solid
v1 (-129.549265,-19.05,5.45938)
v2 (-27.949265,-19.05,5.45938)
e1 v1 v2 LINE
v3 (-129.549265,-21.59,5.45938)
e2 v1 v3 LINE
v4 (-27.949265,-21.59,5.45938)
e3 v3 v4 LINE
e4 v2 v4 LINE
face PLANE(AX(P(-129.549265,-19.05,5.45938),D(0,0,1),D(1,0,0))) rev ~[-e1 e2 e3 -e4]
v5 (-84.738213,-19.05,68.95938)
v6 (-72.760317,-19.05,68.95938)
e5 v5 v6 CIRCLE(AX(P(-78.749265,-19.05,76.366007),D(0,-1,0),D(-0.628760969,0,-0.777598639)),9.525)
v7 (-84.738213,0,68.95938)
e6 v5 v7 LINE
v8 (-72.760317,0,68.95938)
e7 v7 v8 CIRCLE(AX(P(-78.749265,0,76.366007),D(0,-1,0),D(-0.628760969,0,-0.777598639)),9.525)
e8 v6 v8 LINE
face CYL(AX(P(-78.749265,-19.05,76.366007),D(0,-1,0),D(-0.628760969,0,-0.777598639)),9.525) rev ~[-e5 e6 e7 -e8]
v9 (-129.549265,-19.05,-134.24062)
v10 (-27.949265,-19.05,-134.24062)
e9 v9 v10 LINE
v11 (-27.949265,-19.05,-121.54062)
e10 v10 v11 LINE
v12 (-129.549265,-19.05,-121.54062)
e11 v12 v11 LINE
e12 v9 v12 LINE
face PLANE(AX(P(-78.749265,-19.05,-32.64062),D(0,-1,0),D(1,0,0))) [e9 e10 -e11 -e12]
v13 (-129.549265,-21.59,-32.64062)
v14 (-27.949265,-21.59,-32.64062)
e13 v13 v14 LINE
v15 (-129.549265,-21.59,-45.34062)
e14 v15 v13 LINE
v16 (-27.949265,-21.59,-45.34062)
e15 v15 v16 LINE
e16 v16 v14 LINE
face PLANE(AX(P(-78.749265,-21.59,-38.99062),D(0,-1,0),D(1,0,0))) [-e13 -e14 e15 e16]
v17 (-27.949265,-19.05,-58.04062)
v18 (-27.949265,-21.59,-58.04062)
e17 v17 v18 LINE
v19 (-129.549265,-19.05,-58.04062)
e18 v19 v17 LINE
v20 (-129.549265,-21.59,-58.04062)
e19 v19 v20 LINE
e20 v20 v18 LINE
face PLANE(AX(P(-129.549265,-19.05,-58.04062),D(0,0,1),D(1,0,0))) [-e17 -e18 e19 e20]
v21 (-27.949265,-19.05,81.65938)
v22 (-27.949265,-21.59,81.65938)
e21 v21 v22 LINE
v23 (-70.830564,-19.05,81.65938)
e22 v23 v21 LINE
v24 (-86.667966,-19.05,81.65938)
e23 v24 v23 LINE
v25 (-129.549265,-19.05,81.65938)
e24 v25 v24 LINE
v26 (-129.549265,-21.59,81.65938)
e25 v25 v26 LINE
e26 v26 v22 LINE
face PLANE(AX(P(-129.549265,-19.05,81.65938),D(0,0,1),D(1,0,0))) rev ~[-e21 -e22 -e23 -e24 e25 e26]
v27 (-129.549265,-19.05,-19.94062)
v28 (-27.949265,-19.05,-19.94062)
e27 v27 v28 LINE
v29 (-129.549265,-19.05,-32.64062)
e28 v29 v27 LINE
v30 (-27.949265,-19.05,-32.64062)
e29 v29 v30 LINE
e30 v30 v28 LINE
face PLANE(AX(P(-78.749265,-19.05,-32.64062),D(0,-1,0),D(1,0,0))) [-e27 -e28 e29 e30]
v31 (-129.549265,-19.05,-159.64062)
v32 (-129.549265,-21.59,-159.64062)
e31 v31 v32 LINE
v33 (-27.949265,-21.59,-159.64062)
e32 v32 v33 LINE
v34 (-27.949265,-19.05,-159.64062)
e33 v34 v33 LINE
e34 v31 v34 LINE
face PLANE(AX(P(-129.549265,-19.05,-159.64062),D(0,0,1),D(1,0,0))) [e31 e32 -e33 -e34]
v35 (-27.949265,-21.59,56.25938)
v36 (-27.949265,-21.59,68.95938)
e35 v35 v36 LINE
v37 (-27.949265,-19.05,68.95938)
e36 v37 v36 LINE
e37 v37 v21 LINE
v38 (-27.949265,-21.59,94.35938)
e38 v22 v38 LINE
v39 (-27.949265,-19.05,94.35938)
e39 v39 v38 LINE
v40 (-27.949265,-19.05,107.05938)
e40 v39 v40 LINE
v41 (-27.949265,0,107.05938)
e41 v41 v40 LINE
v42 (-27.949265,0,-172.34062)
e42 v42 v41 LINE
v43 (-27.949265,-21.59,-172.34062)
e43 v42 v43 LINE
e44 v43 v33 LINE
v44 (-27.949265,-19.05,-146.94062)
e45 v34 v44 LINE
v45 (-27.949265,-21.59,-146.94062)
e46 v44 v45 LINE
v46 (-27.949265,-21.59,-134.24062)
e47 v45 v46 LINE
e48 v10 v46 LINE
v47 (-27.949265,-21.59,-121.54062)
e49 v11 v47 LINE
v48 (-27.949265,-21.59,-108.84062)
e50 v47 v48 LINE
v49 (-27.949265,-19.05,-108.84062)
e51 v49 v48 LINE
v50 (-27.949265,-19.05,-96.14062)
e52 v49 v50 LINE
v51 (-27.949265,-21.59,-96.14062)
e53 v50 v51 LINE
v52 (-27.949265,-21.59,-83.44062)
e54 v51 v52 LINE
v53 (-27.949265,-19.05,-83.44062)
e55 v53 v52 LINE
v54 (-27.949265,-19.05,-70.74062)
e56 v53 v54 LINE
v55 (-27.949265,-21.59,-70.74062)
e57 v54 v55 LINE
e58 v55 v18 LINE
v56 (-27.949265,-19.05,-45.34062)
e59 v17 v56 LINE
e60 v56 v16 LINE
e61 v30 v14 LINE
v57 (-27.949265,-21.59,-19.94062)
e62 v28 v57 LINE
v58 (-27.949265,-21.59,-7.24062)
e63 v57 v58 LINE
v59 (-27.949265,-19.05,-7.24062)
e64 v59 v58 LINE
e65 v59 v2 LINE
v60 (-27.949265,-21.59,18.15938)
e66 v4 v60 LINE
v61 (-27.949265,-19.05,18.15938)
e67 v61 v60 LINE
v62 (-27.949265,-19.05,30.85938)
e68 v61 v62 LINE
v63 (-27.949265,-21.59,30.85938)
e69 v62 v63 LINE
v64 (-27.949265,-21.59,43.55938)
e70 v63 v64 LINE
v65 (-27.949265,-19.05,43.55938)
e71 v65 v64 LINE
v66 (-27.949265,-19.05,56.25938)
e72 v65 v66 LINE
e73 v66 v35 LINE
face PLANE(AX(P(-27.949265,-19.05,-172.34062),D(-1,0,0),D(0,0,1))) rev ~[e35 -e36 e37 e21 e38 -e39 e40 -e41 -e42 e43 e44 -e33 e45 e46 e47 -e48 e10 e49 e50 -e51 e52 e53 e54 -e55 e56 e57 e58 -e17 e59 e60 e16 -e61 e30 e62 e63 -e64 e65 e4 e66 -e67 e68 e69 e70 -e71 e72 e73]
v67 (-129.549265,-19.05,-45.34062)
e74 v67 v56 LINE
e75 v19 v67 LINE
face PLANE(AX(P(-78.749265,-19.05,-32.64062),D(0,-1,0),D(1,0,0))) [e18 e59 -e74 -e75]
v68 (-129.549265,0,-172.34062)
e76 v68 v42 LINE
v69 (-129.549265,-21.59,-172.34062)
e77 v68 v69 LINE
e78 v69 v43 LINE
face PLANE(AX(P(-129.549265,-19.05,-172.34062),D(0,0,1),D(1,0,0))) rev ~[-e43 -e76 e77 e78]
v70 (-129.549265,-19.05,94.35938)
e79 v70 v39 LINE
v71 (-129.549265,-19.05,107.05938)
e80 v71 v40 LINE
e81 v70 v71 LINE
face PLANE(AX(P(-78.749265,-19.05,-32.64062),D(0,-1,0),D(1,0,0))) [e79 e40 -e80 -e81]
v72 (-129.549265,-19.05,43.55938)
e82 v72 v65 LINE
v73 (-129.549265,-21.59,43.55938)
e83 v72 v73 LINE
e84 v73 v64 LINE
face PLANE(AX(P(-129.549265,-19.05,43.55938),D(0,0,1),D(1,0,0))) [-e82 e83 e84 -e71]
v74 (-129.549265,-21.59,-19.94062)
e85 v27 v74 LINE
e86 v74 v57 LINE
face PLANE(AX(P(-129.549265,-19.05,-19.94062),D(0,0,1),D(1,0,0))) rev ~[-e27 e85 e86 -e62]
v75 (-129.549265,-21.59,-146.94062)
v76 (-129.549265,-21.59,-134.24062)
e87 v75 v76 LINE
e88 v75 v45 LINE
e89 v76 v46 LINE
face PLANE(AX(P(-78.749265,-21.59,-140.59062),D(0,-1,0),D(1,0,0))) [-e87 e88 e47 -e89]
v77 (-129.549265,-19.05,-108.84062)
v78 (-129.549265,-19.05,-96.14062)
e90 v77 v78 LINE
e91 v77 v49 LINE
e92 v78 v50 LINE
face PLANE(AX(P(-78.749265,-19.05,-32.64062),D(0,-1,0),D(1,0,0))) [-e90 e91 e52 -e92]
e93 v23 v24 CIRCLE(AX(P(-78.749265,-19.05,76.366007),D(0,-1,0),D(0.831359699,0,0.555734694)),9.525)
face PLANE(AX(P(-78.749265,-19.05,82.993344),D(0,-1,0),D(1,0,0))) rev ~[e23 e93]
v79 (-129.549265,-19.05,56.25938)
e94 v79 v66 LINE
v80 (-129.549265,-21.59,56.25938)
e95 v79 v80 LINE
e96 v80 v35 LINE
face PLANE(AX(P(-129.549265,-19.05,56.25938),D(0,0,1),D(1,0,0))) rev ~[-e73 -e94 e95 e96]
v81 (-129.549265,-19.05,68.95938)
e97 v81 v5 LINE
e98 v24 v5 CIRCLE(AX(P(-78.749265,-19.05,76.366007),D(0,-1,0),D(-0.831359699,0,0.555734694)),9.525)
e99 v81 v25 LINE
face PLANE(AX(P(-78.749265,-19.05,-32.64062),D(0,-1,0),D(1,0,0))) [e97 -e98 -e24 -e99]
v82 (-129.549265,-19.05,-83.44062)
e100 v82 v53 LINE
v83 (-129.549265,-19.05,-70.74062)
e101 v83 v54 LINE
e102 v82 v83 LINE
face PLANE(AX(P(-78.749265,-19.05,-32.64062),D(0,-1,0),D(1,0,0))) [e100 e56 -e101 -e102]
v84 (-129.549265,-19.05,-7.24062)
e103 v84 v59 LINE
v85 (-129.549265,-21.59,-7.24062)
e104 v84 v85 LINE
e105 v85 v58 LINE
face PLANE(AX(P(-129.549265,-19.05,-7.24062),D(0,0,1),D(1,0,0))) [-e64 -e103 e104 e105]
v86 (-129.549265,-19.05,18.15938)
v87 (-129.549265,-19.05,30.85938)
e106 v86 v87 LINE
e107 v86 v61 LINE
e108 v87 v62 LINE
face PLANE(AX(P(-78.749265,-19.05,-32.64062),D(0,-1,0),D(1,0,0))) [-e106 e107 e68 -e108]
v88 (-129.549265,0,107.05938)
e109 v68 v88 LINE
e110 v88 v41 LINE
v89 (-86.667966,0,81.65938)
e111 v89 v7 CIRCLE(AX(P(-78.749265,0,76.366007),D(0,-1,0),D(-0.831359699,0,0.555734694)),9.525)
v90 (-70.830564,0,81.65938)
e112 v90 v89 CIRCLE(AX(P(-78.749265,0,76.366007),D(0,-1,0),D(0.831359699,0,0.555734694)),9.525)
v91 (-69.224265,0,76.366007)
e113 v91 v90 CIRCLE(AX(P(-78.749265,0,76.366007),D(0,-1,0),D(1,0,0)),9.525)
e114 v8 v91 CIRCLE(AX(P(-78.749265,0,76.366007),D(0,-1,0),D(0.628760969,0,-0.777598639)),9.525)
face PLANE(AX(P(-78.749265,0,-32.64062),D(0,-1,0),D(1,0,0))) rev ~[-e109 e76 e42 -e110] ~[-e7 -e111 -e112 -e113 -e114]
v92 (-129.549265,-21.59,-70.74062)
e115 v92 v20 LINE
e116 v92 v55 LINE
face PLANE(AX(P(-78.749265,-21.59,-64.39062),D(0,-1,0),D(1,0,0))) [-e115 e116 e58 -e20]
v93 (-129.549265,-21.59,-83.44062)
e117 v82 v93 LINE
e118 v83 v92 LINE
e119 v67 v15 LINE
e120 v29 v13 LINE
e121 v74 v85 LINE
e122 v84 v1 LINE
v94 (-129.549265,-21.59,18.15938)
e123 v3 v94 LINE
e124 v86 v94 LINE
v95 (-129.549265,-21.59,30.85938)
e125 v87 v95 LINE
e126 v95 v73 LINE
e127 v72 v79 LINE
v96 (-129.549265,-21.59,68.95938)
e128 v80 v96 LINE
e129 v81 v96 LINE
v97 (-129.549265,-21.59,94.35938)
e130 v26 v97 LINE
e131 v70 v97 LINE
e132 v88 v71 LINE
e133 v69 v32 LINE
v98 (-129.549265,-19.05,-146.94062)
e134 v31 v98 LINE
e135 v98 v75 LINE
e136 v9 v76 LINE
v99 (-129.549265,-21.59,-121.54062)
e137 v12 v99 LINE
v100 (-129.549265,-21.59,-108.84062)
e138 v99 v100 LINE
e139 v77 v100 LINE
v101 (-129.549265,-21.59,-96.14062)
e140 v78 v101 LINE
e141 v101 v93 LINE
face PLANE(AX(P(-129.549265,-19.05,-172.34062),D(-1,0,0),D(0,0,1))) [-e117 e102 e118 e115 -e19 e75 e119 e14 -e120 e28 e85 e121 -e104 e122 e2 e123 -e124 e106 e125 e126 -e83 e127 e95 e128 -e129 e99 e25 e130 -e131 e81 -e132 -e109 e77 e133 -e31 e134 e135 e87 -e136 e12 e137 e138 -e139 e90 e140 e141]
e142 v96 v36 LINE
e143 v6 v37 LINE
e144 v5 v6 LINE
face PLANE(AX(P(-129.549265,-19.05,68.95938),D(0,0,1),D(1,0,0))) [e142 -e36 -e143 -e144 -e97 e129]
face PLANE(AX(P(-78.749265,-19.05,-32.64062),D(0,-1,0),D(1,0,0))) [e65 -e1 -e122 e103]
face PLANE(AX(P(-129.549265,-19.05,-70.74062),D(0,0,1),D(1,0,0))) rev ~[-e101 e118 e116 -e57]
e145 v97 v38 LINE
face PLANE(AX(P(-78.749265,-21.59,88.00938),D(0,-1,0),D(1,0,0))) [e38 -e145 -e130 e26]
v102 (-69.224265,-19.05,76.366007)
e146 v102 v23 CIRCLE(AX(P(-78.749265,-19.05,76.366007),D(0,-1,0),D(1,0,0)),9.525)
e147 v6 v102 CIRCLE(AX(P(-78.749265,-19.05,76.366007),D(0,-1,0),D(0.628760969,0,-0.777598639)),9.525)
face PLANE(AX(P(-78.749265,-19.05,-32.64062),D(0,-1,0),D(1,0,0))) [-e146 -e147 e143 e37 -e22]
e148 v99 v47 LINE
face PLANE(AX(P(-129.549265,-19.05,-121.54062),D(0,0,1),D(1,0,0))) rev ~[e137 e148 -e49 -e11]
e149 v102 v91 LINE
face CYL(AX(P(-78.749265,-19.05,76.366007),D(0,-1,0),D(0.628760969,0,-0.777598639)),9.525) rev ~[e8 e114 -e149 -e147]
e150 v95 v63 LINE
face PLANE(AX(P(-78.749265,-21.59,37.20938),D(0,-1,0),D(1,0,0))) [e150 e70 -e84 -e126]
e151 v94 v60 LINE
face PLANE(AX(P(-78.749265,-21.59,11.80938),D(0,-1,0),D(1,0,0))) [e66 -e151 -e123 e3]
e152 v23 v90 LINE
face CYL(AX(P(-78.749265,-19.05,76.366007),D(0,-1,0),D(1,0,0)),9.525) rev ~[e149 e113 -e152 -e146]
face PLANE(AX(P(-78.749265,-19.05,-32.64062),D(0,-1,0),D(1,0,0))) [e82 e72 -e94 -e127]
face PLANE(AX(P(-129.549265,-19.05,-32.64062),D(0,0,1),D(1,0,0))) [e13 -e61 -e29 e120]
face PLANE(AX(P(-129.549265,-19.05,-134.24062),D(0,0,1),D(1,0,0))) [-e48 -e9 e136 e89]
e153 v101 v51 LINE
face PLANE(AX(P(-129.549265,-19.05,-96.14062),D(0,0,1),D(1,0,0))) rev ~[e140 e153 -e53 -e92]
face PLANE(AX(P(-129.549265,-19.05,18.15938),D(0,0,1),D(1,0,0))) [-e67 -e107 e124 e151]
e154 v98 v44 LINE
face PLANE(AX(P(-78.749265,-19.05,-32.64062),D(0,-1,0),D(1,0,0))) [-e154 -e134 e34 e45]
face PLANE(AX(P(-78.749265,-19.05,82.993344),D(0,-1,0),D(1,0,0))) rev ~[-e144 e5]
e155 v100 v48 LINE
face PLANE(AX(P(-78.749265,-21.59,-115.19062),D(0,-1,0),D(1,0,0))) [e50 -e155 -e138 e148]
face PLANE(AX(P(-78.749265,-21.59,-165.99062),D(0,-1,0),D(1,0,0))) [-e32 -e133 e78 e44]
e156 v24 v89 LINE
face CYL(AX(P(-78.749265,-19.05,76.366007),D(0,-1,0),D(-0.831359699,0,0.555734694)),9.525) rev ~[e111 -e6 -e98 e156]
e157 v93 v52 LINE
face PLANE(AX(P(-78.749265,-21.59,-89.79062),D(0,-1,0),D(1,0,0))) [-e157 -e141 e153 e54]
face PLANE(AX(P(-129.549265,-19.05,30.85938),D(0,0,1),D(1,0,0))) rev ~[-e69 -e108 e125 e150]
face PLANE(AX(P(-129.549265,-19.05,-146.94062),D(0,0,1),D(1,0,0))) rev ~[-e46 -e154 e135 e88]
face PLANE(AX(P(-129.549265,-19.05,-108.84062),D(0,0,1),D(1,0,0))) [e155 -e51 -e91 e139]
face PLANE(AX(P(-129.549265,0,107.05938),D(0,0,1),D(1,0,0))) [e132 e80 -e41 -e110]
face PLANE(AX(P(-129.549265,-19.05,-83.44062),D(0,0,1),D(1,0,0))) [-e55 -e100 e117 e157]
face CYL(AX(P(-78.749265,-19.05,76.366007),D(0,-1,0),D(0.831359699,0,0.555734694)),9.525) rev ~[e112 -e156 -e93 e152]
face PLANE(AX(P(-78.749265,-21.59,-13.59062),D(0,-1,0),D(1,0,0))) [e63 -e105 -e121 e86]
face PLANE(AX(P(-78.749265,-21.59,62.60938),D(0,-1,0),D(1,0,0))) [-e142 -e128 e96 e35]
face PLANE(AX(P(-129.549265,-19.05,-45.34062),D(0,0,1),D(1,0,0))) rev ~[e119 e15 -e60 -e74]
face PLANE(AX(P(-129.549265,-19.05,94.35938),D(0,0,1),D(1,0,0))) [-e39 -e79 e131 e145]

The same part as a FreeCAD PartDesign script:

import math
import FreeCAD as App
import Part
import Sketcher
from FreeCAD import Vector
Q = App.Units.Quantity


def add_polygon(sketch, points):
    """Adds a closed chain of lines whose ends are joined by coincident constraints."""
    first, n = sketch.GeometryCount, len(points)
    for a, b in zip(points, points[1:] + points[:1]):
        sketch.addGeometry(Part.LineSegment(App.Vector(*a, 0), App.Vector(*b, 0)), False)
    for i in range(n):
        sketch.addConstraint(Sketcher.Constraint("Coincident", first + i, 2, first + (i + 1) % n, 1))

doc = App.newDocument("Part")
body = doc.addObject("PartDesign::Body", "Body")

# Sketch on XZ plane
sketch1 = body.newObject("Sketcher::SketchObject", "Sketch")
sketch1.AttachmentSupport = (doc.getObject("XZ_Plane"), [""])
sketch1.MapMode = "FlatFace"
add_polygon(sketch1, [(-129.549265, 107.05938), (-129.549265, -172.34062), (-27.949265, -172.34062), (-27.949265, 107.05938)])  # lines 0-3
sketch1.addConstraint([
    Sketcher.Constraint("Vertical", 0),
    Sketcher.Constraint("Horizontal", 1),
    Sketcher.Constraint("Vertical", 2),
    Sketcher.Constraint("Horizontal", 3),
    Sketcher.Constraint("DistanceX", 1, 1, 1, 2, Q("4 in")),
    Sketcher.Constraint("DistanceY", 0, 2, 0, 1, Q("11 in")),
    Sketcher.Constraint("DistanceY", 0, 2, -1, 1, Q("172.34062 mm")),
    Sketcher.Constraint("DistanceX", 0, 2, -1, 1, Q("129.549265 mm")),
])
pad1 = body.newObject("PartDesign::Pad", "Pad")
pad1.Profile = sketch1
pad1.Length = Q("0.75 in")

# Sketch on XZ plane
sketch2 = body.newObject("Sketcher::SketchObject", "Sketch001")
sketch2.AttachmentSupport = (doc.getObject("XZ_Plane"), [""])
sketch2.MapMode = "FlatFace"
sketch2.AttachmentOffset = App.Placement(Vector(0, 0, 0.75 * 25.4), App.Rotation())
add_polygon(sketch2, [(-129.549265, -108.84062), (-129.549265, -121.54062), (-27.949265, -121.54062), (-27.949265, -108.84062)])  # lines 0-3
add_polygon(sketch2, [(-129.549265, -83.44062), (-129.549265, -96.14062), (-27.949265, -96.14062), (-27.949265, -83.44062)])  # lines 4-7
add_polygon(sketch2, [(-129.549265, -58.04062), (-129.549265, -70.74062), (-27.949265, -70.74062), (-27.949265, -58.04062)])  # lines 8-11
add_polygon(sketch2, [(-129.549265, -32.64062), (-129.549265, -45.34062), (-27.949265, -45.34062), (-27.949265, -32.64062)])  # lines 12-15
add_polygon(sketch2, [(-129.549265, -7.24062), (-129.549265, -19.94062), (-27.949265, -19.94062), (-27.949265, -7.24062)])  # lines 16-19
add_polygon(sketch2, [(-129.549265, 18.15938), (-129.549265, 5.45938), (-27.949265, 5.45938), (-27.949265, 18.15938)])  # lines 20-23
add_polygon(sketch2, [(-129.549265, 43.55938), (-129.549265, 30.85938), (-27.949265, 30.85938), (-27.949265, 43.55938)])  # lines 24-27
add_polygon(sketch2, [(-129.549265, 68.95938), (-129.549265, 56.25938), (-27.949265, 56.25938), (-27.949265, 68.95938)])  # lines 28-31
add_polygon(sketch2, [(-129.549265, 94.35938), (-129.549265, 81.65938), (-27.949265, 81.65938), (-27.949265, 94.35938)])  # lines 32-35
add_polygon(sketch2, [(-129.549265, -134.24062), (-129.549265, -146.94062), (-27.949265, -146.94062), (-27.949265, -134.24062)])  # lines 36-39
add_polygon(sketch2, [(-129.549265, -159.64062), (-129.549265, -172.34062), (-27.949265, -172.34062), (-27.949265, -159.64062)])  # lines 40-43
sketch2.addConstraint([
    Sketcher.Constraint("Vertical", 0),
    Sketcher.Constraint("Horizontal", 1),
    Sketcher.Constraint("Vertical", 2),
    Sketcher.Constraint("Horizontal", 3),
    Sketcher.Constraint("Vertical", 4),
    Sketcher.Constraint("Horizontal", 5),
    Sketcher.Constraint("Vertical", 6),
    Sketcher.Constraint("Horizontal", 7),
    Sketcher.Constraint("Vertical", 8),
    Sketcher.Constraint("Horizontal", 9),
    Sketcher.Constraint("Vertical", 10),
    Sketcher.Constraint("Horizontal", 11),
    Sketcher.Constraint("Vertical", 12),
    Sketcher.Constraint("Horizontal", 13),
    Sketcher.Constraint("Vertical", 14),
    Sketcher.Constraint("Horizontal", 15),
    Sketcher.Constraint("Vertical", 16),
    Sketcher.Constraint("Horizontal", 17),
    Sketcher.Constraint("Vertical", 18),
    Sketcher.Constraint("Horizontal", 19),
    Sketcher.Constraint("Vertical", 20),
    Sketcher.Constraint("Horizontal", 21),
    Sketcher.Constraint("Vertical", 22),
    Sketcher.Constraint("Horizontal", 23),
    Sketcher.Constraint("Vertical", 24),
    Sketcher.Constraint("Horizontal", 25),
    Sketcher.Constraint("Vertical", 26),
    Sketcher.Constraint("Horizontal", 27),
    Sketcher.Constraint("Vertical", 28),
    Sketcher.Constraint("Horizontal", 29),
    Sketcher.Constraint("Vertical", 30),
    Sketcher.Constraint("Horizontal", 31),
    Sketcher.Constraint("Vertical", 32),
    Sketcher.Constraint("Horizontal", 33),
    Sketcher.Constraint("Vertical", 34),
    Sketcher.Constraint("Horizontal", 35),
    Sketcher.Constraint("Vertical", 36),
    Sketcher.Constraint("Horizontal", 37),
    Sketcher.Constraint("Vertical", 38),
    Sketcher.Constraint("Horizontal", 39),
    Sketcher.Constraint("Vertical", 40),
    Sketcher.Constraint("Horizontal", 41),
    Sketcher.Constraint("Vertical", 42),
    Sketcher.Constraint("Horizontal", 43),
    Sketcher.Constraint("Vertical", 3, 2, 4, 2),
    Sketcher.Constraint("Vertical", 2, 2, 5, 2),
    Sketcher.Constraint("Vertical", 7, 2, 8, 2),
    Sketcher.Constraint("Vertical", 6, 2, 9, 2),
    Sketcher.Constraint("Vertical", 11, 2, 12, 2),
    Sketcher.Constraint("Vertical", 10, 2, 13, 2),
    Sketcher.Constraint("Vertical", 15, 2, 16, 2),
    Sketcher.Constraint("Vertical", 14, 2, 17, 2),
    Sketcher.Constraint("Vertical", 19, 2, 20, 2),
    Sketcher.Constraint("Vertical", 18, 2, 21, 2),
    Sketcher.Constraint("Vertical", 23, 2, 24, 2),
    Sketcher.Constraint("Vertical", 22, 2, 25, 2),
    Sketcher.Constraint("Vertical", 27, 2, 28, 2),
    Sketcher.Constraint("Vertical", 26, 2, 29, 2),
    Sketcher.Constraint("Vertical", 31, 2, 32, 2),
    Sketcher.Constraint("Vertical", 30, 2, 33, 2),
    Sketcher.Constraint("Vertical", 35, 2, 36, 2),
    Sketcher.Constraint("Vertical", 34, 2, 37, 2),
    Sketcher.Constraint("Vertical", 39, 2, 40, 2),
    Sketcher.Constraint("Vertical", 38, 2, 41, 2),
    Sketcher.Constraint("Equal", 2, 4),
    Sketcher.Constraint("Equal", 6, 8),
    Sketcher.Constraint("Equal", 10, 12),
    Sketcher.Constraint("Equal", 14, 16),
    Sketcher.Constraint("Equal", 18, 20),
    Sketcher.Constraint("Equal", 22, 24),
    Sketcher.Constraint("Equal", 26, 28),
    Sketcher.Constraint("Equal", 30, 32),
    Sketcher.Constraint("Equal", 34, 36),
    Sketcher.Constraint("Equal", 38, 40),
    Sketcher.Constraint("DistanceX", 1, 1, 1, 2, Q("4 in")),
    Sketcher.Constraint("DistanceY", 0, 2, 0, 1, Q("0.5 in")),
    Sketcher.Constraint("DistanceY", 0, 2, 4, 2, Q("1 in")),
    Sketcher.Constraint("DistanceY", 4, 2, 8, 2, Q("1 in")),
    Sketcher.Constraint("DistanceY", 8, 2, 12, 2, Q("1 in")),
    Sketcher.Constraint("DistanceY", 12, 2, 16, 2, Q("1 in")),
    Sketcher.Constraint("DistanceY", 16, 2, 20, 2, Q("1 in")),
    Sketcher.Constraint("DistanceY", 20, 2, 24, 2, Q("1 in")),
    Sketcher.Constraint("DistanceY", 24, 2, 28, 2, Q("1 in")),
    Sketcher.Constraint("DistanceY", 28, 2, 32, 2, Q("1 in")),
    Sketcher.Constraint("DistanceY", 36, 2, 0, 2, Q("1 in")),
    Sketcher.Constraint("DistanceY", 40, 2, 36, 2, Q("1 in")),
    Sketcher.Constraint("DistanceY", 0, 2, -1, 1, Q("121.54062 mm")),
    Sketcher.Constraint("DistanceX", 0, 2, -1, 1, Q("129.549265 mm")),
])
pad2 = body.newObject("PartDesign::Pad", "Pad001")
pad2.Profile = sketch2
pad2.Length = Q("0.1 in")

# Sketch on XZ plane
sketch3 = body.newObject("Sketcher::SketchObject", "Sketch002")
sketch3.AttachmentSupport = (doc.getObject("XZ_Plane"), [""])
sketch3.MapMode = "FlatFace"
sketch3.AttachmentOffset = App.Placement(Vector(0, 0, 0.75 * 25.4), App.Rotation())
sketch3.addGeometry([
    Part.ArcOfCircle(Part.Circle(Vector(-78.749265, 76.366007, 0), Vector(0, 0, 1), 9.525), math.radians(33.761334), math.radians(146.238666)),  # 0
    Part.ArcOfCircle(Part.Circle(Vector(-78.749265, 76.366007, 0), Vector(0, 0, 1), 9.525), math.radians(146.238666), math.radians(231.041232)),  # 1
    Part.ArcOfCircle(Part.Circle(Vector(-78.749265, 76.366007, 0), Vector(0, 0, 1), 9.525), math.radians(-128.958768), math.radians(-51.041232)),  # 2
    Part.ArcOfCircle(Part.Circle(Vector(-78.749265, 76.366007, 0), Vector(0, 0, 1), 9.525), math.radians(-51.041232), math.radians(0)),  # 3
    Part.ArcOfCircle(Part.Circle(Vector(-78.749265, 76.366007, 0), Vector(0, 0, 1), 9.525), math.radians(0), math.radians(33.761334)),  # 4
], False)
sketch3.addConstraint([
    Sketcher.Constraint("Tangent", 0, 2, 1, 1),
    Sketcher.Constraint("Tangent", 1, 2, 2, 1),
    Sketcher.Constraint("Tangent", 2, 2, 3, 1),
    Sketcher.Constraint("Tangent", 3, 2, 4, 1),
    Sketcher.Constraint("Tangent", 4, 2, 0, 1),
    Sketcher.Constraint("Coincident", 2, 3, 0, 3),
    Sketcher.Constraint("Horizontal", 1, 2, 2, 2),
    Sketcher.Constraint("Horizontal", 4, 3, 3, 2),
    Sketcher.Constraint("Horizontal", 0, 2, 4, 2),
    Sketcher.Constraint("Radius", 0, Q("0.375 in")),
    Sketcher.Constraint("DistanceX", 0, 2, 0, 3, Q("7.918701 mm")),
    Sketcher.Constraint("DistanceY", -1, 1, 0, 2, Q("81.65938 mm")),
    Sketcher.Constraint("DistanceY", -1, 1, 1, 2, Q("68.95938 mm")),
    Sketcher.Constraint("DistanceX", 0, 3, -1, 1, Q("78.749265 mm")),
])
pocket1 = body.newObject("PartDesign::Pocket", "Pocket")
pocket1.Profile = sketch3
pocket1.Length = Q("1 in")

doc.recompute()
